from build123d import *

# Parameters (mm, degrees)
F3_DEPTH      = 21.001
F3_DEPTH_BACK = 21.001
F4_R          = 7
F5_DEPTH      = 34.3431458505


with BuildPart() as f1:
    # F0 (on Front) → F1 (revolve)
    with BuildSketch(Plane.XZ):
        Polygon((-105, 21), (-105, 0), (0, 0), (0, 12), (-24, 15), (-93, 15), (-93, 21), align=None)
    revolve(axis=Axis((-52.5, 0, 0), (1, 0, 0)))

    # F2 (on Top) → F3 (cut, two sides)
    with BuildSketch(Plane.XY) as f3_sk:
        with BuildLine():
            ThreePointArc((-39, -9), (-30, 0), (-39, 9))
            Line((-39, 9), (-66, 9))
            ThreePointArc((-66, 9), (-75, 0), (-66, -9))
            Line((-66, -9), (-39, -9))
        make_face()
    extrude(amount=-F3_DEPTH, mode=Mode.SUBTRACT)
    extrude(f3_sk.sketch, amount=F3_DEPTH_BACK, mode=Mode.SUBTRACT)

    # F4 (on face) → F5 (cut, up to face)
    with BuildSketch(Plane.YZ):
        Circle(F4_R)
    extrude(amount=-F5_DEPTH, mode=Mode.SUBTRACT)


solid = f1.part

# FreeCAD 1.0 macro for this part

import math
import FreeCAD as App
import Part
import Sketcher
from FreeCAD import Vector


def add_polygon(sketch, points):
    """Adds a closed chain of lines whose ends are joined by coincident constraints."""
    first, n = sketch.GeometryCount, len(points)
    for a, b in zip(points, points[1:] + points[:1]):
        sketch.addGeometry(Part.LineSegment(App.Vector(*a, 0), App.Vector(*b, 0)), False)
    for i in range(n):
        sketch.addConstraint(Sketcher.Constraint("Coincident", first + i, 2, first + (i + 1) % n, 1))

doc = App.newDocument("Part")
params = doc.addObject("Spreadsheet::Sheet", "Params")
for row, (alias, value) in enumerate([
    ("sketch1_width", "105 mm"),
    ("sketch1_width2", "69 mm"),
    ("sketch1_width3", "12 mm"),
    ("sketch1_height", "21 mm"),
    ("sketch1_height2", "6 mm"),
    ("revolution_angle", "360 deg"),
    ("sketch2_radius", "9 mm"),
    ("sketch2_width", "27 mm"),
    ("sketch3_diameter", "14 mm"),
    ("pocket2_length", "34.343146 mm"),
], start=1):
    params.set(f"A{row}", alias)
    params.set(f"B{row}", "=" + value)
    params.setAlias(f"B{row}", alias)

body = doc.addObject("PartDesign::Body", "Body")

sketch1 = body.newObject("Sketcher::SketchObject", "Sketch")
sketch1.AttachmentSupport = (doc.getObject("XZ_Plane"), [""])
sketch1.MapMode = "FlatFace"
add_polygon(sketch1, [(-105, 21), (-105, 0), (0, 0), (0, 12), (-24, 15), (-93, 15), (-93, 21)])
sketch1.addConstraint(Sketcher.Constraint("Vertical", 0))
sketch1.addConstraint(Sketcher.Constraint("Horizontal", 1))
sketch1.addConstraint(Sketcher.Constraint("Vertical", 2))
sketch1.addConstraint(Sketcher.Constraint("Horizontal", 4))
sketch1.addConstraint(Sketcher.Constraint("Vertical", 5))
sketch1.addConstraint(Sketcher.Constraint("Horizontal", 6))
sketch1.addConstraint(Sketcher.Constraint("Coincident", 1, 2, -1, 1))
sketch1.addConstraint(Sketcher.Constraint("Equal", 6, 2))
sketch1.addConstraint(Sketcher.Constraint("DistanceX", 1, 1, 1, 2, 105.0))
sketch1.addConstraint(Sketcher.Constraint("DistanceX", 4, 2, 4, 1, 69.0))
sketch1.addConstraint(Sketcher.Constraint("DistanceX", 6, 2, 6, 1, 12.0))
sketch1.addConstraint(Sketcher.Constraint("DistanceY", 0, 2, 0, 1, 21.0))
sketch1.addConstraint(Sketcher.Constraint("DistanceY", 5, 1, 5, 2, 6.0))
sketch1.setExpression("Constraints[15]", "Params.sketch1_width")
sketch1.setExpression("Constraints[16]", "Params.sketch1_width2")
sketch1.setExpression("Constraints[17]", "Params.sketch1_width3")
sketch1.setExpression("Constraints[18]", "Params.sketch1_height")
sketch1.setExpression("Constraints[19]", "Params.sketch1_height2")
revolution = body.newObject("PartDesign::Revolution", "Revolution")
revolution.Profile = sketch1
revolution.ReferenceAxis = (sketch1, ["H_Axis"])
revolution.setExpression("Angle", "Params.revolution_angle")

sketch2 = body.newObject("Sketcher::SketchObject", "Sketch001")
sketch2.AttachmentSupport = (doc.getObject("XY_Plane"), [""])
sketch2.MapMode = "FlatFace"
sketch2.addGeometry(Part.ArcOfCircle(Part.Circle(Vector(-39, 0, 0), Vector(0, 0, 1), 9), math.radians(-90), math.radians(90)), False)
sketch2.addGeometry(Part.LineSegment(Vector(-39, 9, 0), Vector(-66, 9, 0)), False)
sketch2.addGeometry(Part.ArcOfCircle(Part.Circle(Vector(-66, 0, 0), Vector(0, 0, 1), 9), math.radians(90), math.radians(270)), False)
sketch2.addGeometry(Part.LineSegment(Vector(-66, -9, 0), Vector(-39, -9, 0)), False)
sketch2.addConstraint(Sketcher.Constraint("Tangent", 0, 2, 1, 1))
sketch2.addConstraint(Sketcher.Constraint("Tangent", 1, 2, 2, 1))
sketch2.addConstraint(Sketcher.Constraint("Tangent", 2, 2, 3, 1))
sketch2.addConstraint(Sketcher.Constraint("Tangent", 3, 2, 0, 1))
sketch2.addConstraint(Sketcher.Constraint("Horizontal", 1))
sketch2.addConstraint(Sketcher.Constraint("Horizontal", 3))
sketch2.addConstraint(Sketcher.Constraint("PointOnObject", 0, 3, -1))
sketch2.addConstraint(Sketcher.Constraint("Radius", 0, 9.0))
sketch2.addConstraint(Sketcher.Constraint("DistanceX", 1, 2, 1, 1, 27.0))
sketch2.addConstraint(Sketcher.Constraint("DistanceX", 0, 3, -1, 1, 39.0))
sketch2.setExpression("Constraints[7]", "Params.sketch2_radius")
sketch2.setExpression("Constraints[8]", "Params.sketch2_width")
pocket1 = body.newObject("PartDesign::Pocket", "Pocket")
pocket1.Profile = sketch2
pocket1.Type = "ThroughAll"
pocket1.Midplane = True

sketch3 = body.newObject("Sketcher::SketchObject", "Sketch002")
sketch3.AttachmentSupport = (doc.getObject("YZ_Plane"), [""])
sketch3.MapMode = "FlatFace"
sketch3.addGeometry(Part.Circle(Vector(0, 0, 0), Vector(0, 0, 1), 7), False)
sketch3.addConstraint(Sketcher.Constraint("Coincident", 0, 3, -1, 1))
sketch3.addConstraint(Sketcher.Constraint("Diameter", 0, 14.0))
sketch3.setExpression("Constraints[1]", "Params.sketch3_diameter")
pocket2 = body.newObject("PartDesign::Pocket", "Pocket001")
pocket2.Profile = sketch3
pocket2.setExpression("Length", "Params.pocket2_length")

doc.recompute()
